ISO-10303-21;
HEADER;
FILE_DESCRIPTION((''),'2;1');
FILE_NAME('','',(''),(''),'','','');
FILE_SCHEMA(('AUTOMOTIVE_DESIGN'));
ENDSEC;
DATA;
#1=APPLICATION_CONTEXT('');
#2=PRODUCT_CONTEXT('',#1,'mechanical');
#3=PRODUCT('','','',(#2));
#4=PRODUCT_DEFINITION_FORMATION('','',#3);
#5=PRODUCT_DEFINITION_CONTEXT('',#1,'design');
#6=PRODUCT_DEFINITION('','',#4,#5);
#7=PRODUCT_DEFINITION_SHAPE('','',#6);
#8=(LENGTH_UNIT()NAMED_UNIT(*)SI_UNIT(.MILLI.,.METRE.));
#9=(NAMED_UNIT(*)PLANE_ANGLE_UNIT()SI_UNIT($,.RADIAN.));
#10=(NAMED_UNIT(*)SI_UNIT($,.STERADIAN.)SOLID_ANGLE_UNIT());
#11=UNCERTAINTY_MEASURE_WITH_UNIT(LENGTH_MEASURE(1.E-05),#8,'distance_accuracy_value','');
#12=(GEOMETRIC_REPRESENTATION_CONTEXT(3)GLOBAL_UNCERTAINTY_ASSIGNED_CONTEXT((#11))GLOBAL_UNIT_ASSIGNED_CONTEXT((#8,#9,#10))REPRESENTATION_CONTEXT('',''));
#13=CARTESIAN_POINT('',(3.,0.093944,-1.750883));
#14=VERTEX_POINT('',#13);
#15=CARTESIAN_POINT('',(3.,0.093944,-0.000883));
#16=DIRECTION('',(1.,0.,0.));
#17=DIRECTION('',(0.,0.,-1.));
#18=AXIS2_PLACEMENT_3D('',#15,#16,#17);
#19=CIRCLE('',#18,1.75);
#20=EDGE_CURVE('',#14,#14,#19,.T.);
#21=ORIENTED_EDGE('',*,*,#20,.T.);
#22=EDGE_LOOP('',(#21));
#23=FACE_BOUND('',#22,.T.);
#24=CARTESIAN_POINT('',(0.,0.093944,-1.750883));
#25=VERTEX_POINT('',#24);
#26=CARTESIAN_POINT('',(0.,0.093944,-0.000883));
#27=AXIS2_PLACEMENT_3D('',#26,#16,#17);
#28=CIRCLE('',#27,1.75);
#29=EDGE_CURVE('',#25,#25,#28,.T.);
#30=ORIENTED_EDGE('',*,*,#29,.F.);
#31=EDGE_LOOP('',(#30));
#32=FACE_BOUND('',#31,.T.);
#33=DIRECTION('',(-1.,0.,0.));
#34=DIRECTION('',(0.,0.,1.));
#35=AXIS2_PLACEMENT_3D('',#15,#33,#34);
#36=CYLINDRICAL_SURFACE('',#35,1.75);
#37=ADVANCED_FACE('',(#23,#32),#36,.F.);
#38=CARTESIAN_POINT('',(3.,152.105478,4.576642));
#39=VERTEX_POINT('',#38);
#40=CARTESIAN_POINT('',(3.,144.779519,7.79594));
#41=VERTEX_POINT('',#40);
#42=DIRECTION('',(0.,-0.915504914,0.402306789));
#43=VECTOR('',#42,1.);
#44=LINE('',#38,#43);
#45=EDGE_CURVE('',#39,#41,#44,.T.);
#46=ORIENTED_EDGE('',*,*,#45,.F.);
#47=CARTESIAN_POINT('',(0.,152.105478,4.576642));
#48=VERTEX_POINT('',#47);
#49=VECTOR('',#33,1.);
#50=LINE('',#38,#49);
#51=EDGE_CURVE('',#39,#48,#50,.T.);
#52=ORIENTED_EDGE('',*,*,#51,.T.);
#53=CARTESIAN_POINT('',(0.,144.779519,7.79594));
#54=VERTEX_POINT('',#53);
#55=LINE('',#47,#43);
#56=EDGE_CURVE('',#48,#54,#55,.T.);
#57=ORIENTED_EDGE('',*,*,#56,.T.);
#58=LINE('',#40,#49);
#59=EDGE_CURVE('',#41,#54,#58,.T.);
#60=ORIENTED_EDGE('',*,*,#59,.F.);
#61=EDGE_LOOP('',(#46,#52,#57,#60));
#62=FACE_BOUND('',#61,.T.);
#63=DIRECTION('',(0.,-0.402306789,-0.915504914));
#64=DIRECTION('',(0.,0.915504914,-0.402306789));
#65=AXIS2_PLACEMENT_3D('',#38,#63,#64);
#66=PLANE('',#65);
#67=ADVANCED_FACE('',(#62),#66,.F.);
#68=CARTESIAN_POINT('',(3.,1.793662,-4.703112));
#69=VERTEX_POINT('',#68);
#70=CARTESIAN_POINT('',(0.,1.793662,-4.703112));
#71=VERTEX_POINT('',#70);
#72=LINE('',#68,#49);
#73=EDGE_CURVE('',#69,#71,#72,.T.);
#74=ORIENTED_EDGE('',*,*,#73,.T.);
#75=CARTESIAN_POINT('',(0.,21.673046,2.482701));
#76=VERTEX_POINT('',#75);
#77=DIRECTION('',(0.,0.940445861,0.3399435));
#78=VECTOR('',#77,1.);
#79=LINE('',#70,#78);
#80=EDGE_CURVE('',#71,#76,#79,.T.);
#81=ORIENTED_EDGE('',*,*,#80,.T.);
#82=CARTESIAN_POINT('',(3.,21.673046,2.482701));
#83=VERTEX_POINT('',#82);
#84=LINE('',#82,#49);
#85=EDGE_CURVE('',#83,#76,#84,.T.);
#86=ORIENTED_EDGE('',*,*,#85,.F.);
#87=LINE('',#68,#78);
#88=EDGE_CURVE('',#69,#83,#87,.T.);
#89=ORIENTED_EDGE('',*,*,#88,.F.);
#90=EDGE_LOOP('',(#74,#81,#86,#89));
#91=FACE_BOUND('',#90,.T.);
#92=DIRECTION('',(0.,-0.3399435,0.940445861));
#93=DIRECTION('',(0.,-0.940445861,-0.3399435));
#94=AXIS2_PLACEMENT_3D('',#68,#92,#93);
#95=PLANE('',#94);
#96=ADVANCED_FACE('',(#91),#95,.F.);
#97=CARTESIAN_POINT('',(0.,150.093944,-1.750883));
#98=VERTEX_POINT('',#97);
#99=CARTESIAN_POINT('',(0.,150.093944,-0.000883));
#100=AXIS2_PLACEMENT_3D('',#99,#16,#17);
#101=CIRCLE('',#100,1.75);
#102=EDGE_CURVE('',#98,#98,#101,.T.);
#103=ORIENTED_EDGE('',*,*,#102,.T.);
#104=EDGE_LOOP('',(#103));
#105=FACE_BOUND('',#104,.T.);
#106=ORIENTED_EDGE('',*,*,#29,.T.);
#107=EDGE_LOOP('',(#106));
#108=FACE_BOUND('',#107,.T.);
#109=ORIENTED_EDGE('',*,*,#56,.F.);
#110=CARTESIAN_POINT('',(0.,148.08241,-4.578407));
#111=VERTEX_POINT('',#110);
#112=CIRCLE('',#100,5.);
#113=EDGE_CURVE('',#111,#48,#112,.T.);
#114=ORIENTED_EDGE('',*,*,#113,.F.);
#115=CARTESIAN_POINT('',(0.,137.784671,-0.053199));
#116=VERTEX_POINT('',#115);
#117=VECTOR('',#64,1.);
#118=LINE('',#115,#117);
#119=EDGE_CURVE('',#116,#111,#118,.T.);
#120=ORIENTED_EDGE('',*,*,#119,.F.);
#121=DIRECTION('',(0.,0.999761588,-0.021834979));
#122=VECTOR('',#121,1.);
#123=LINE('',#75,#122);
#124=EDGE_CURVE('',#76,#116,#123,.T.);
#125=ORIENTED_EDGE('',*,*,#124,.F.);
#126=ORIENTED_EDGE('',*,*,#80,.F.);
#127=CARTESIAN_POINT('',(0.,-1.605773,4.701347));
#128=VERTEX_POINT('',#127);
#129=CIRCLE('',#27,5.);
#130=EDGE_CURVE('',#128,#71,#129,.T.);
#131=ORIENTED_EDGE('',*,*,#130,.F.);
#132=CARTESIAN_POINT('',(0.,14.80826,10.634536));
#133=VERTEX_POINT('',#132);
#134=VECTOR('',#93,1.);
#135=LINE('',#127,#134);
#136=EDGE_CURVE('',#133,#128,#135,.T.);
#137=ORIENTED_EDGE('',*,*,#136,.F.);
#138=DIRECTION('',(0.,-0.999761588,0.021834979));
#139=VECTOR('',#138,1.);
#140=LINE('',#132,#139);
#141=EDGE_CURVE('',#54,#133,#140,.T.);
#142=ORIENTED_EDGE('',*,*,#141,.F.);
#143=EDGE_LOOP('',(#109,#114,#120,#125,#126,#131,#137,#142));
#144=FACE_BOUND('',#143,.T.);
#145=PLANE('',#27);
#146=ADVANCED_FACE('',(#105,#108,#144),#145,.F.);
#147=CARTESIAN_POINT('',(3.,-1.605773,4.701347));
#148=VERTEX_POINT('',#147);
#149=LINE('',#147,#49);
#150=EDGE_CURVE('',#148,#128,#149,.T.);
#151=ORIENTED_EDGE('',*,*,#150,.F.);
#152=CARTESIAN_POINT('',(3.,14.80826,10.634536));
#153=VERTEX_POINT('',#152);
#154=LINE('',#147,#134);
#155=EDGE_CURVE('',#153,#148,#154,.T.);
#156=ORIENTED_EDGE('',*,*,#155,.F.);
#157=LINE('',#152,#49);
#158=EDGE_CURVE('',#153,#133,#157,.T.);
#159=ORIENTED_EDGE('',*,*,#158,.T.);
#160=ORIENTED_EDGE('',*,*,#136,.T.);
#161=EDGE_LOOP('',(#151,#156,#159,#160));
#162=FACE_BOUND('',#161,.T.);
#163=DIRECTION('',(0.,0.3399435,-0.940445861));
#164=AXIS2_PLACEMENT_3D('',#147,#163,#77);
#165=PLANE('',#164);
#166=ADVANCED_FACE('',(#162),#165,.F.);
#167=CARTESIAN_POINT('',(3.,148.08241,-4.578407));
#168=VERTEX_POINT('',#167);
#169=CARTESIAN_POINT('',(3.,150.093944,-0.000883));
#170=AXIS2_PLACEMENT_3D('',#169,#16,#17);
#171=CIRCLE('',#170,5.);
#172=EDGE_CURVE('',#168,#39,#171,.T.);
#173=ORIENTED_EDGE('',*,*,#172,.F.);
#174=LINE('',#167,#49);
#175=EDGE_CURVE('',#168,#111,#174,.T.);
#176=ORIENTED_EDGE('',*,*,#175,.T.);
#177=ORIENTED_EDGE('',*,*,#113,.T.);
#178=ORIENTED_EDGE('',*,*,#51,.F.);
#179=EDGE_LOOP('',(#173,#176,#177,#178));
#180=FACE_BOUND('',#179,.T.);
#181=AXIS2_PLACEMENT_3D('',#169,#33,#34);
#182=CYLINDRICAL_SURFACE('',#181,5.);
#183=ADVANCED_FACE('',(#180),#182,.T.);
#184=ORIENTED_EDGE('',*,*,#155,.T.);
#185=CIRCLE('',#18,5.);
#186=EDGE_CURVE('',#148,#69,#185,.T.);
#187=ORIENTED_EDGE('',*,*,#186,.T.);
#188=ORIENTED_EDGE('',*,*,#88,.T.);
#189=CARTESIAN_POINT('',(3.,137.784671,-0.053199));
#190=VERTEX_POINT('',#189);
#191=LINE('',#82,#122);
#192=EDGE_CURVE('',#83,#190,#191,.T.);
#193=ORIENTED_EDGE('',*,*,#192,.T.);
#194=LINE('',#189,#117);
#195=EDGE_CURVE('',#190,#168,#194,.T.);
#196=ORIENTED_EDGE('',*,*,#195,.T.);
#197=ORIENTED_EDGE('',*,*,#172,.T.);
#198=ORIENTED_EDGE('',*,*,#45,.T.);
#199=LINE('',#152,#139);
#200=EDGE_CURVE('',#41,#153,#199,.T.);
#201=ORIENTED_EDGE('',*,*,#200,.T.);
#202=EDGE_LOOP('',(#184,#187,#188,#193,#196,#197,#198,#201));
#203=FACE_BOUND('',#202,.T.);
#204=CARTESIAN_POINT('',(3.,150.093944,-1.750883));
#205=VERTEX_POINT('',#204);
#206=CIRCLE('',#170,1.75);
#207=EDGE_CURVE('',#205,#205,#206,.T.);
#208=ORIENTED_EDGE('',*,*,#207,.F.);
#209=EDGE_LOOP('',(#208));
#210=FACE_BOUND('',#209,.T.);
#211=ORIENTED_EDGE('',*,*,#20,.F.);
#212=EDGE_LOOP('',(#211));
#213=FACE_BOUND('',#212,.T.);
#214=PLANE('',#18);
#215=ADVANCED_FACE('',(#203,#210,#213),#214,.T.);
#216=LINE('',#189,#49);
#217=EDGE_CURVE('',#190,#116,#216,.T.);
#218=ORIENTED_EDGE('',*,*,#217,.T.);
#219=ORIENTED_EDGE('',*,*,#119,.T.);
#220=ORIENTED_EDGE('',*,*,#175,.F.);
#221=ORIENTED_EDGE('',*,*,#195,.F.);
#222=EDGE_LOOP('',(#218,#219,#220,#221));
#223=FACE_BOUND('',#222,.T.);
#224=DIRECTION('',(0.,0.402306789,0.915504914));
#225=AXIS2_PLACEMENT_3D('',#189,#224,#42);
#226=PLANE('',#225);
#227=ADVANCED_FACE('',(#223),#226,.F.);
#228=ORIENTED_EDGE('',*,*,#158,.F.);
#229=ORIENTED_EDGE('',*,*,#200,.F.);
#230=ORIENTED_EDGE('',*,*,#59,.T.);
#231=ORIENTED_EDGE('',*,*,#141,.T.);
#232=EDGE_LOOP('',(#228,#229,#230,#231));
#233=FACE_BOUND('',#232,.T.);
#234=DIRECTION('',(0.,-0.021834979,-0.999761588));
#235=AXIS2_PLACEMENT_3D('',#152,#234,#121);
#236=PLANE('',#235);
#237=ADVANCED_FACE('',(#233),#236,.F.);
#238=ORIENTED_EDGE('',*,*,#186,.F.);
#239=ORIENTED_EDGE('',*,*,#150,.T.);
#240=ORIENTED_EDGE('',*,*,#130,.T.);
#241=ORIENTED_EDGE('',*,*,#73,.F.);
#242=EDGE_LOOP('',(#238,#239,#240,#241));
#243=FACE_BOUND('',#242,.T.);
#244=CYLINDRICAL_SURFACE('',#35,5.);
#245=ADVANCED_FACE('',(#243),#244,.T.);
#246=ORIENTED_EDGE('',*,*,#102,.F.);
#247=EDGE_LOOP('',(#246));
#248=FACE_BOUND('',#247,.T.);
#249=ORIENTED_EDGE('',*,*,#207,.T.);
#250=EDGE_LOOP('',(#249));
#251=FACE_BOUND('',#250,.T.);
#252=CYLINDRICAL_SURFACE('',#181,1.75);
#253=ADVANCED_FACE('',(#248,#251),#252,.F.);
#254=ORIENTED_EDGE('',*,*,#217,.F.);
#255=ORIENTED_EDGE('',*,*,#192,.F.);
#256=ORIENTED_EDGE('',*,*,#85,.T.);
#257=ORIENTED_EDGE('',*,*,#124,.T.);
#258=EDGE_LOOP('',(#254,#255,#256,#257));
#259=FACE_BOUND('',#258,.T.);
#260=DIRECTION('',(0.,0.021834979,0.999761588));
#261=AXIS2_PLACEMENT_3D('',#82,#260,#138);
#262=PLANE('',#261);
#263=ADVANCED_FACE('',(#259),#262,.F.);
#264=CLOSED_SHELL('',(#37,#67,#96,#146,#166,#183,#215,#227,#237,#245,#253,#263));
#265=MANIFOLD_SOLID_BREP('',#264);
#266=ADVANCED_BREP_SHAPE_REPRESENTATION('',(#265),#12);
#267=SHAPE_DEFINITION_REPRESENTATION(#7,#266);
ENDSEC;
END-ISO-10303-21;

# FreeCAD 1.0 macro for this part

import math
import FreeCAD as App
import Part
import Sketcher

V = App.Vector

doc = App.newDocument("Part")
body = doc.addObject("PartDesign::Body", "Body")

# Sketch on YZ plane
sketch1 = body.newObject("Sketcher::SketchObject", "Sketch")
sketch1.AttachmentSupport = (doc.getObject("YZ_Plane"), [""])
sketch1.MapMode = "FlatFace"
sketch1.addGeometry([
    Part.LineSegment(V(1.8, -4.7, 0), V(21.7, 2.5, 0)),  # 0
    Part.LineSegment(V(21.7, 2.5, 0), V(137.8, -0.1, 0)),  # 1
    Part.LineSegment(V(137.8, -0.1, 0), V(148.1, -4.6, 0)),  # 2
    Part.ArcOfCircle(Part.Circle(V(150.1, 0, 0), V(0, 0, 1), 5), math.radians(-114), math.radians(66)),  # 3
    Part.LineSegment(V(152.1, 4.6, 0), V(144.8, 7.8, 0)),  # 4
    Part.LineSegment(V(144.8, 7.8, 0), V(14.8, 10.6, 0)),  # 5
    Part.LineSegment(V(14.8, 10.6, 0), V(-1.6, 4.7, 0)),  # 6
    Part.ArcOfCircle(Part.Circle(V(0.1, 0, 0), V(0, 0, 1), 5), math.radians(110), math.radians(290)),  # 7
    Part.Circle(V(0.1, 0, 0), V(0, 0, 1), 1.8),  # 8
    Part.Circle(V(150.1, 0, 0), V(0, 0, 1), 1.8),  # 9
], False)
sketch1.addConstraint([
    Sketcher.Constraint("Coincident", 0, 2, 1, 1),
    Sketcher.Constraint("Coincident", 1, 2, 2, 1),
    Sketcher.Constraint("Tangent", 2, 2, 3, 1),
    Sketcher.Constraint("Tangent", 3, 2, 4, 1),
    Sketcher.Constraint("Coincident", 4, 2, 5, 1),
    Sketcher.Constraint("Coincident", 5, 2, 6, 1),
    Sketcher.Constraint("Tangent", 6, 2, 7, 1),
    Sketcher.Constraint("Tangent", 7, 2, 0, 1),
    Sketcher.Constraint("Coincident", 8, 3, 7, 3),
    Sketcher.Constraint("Coincident", 9, 3, 3, 3),
    Sketcher.Constraint("Equal", 3, 7),
    Sketcher.Constraint("Equal", 8, 9),
    Sketcher.Constraint("Parallel", 2, 4),
    Sketcher.Constraint("Parallel", 1, 5),
    Sketcher.Constraint("Parallel", 0, 6),
    Sketcher.Constraint("Horizontal", 3, 3, 7, 3),
    Sketcher.Constraint("Radius", 3, 5.0),
    Sketcher.Constraint("Diameter", 8, 3.5),
    Sketcher.Constraint("DistanceX", 7, 3, 3, 3, 150.0),
    Sketcher.Constraint("DistanceY", -1, 1, 0, 2, 2.482701),
    Sketcher.Constraint("DistanceY", 1, 2, -1, 1, 0.053199),
    Sketcher.Constraint("DistanceY", 3, 2, 4, 2, 3.219298),
    Sketcher.Constraint("Distance", 6, 17.453459),
    Sketcher.Constraint("DistanceX", -1, 1, 1, 2, 137.784671),
    Sketcher.Constraint("DistanceX", -1, 1, 2, 2, 148.08241),
    Sketcher.Constraint("DistanceX", -1, 1, 3, 2, 152.105478),
])
pad1 = body.newObject("PartDesign::Pad", "Pad")
pad1.Profile = sketch1
pad1.Length = 3

doc.recompute()
